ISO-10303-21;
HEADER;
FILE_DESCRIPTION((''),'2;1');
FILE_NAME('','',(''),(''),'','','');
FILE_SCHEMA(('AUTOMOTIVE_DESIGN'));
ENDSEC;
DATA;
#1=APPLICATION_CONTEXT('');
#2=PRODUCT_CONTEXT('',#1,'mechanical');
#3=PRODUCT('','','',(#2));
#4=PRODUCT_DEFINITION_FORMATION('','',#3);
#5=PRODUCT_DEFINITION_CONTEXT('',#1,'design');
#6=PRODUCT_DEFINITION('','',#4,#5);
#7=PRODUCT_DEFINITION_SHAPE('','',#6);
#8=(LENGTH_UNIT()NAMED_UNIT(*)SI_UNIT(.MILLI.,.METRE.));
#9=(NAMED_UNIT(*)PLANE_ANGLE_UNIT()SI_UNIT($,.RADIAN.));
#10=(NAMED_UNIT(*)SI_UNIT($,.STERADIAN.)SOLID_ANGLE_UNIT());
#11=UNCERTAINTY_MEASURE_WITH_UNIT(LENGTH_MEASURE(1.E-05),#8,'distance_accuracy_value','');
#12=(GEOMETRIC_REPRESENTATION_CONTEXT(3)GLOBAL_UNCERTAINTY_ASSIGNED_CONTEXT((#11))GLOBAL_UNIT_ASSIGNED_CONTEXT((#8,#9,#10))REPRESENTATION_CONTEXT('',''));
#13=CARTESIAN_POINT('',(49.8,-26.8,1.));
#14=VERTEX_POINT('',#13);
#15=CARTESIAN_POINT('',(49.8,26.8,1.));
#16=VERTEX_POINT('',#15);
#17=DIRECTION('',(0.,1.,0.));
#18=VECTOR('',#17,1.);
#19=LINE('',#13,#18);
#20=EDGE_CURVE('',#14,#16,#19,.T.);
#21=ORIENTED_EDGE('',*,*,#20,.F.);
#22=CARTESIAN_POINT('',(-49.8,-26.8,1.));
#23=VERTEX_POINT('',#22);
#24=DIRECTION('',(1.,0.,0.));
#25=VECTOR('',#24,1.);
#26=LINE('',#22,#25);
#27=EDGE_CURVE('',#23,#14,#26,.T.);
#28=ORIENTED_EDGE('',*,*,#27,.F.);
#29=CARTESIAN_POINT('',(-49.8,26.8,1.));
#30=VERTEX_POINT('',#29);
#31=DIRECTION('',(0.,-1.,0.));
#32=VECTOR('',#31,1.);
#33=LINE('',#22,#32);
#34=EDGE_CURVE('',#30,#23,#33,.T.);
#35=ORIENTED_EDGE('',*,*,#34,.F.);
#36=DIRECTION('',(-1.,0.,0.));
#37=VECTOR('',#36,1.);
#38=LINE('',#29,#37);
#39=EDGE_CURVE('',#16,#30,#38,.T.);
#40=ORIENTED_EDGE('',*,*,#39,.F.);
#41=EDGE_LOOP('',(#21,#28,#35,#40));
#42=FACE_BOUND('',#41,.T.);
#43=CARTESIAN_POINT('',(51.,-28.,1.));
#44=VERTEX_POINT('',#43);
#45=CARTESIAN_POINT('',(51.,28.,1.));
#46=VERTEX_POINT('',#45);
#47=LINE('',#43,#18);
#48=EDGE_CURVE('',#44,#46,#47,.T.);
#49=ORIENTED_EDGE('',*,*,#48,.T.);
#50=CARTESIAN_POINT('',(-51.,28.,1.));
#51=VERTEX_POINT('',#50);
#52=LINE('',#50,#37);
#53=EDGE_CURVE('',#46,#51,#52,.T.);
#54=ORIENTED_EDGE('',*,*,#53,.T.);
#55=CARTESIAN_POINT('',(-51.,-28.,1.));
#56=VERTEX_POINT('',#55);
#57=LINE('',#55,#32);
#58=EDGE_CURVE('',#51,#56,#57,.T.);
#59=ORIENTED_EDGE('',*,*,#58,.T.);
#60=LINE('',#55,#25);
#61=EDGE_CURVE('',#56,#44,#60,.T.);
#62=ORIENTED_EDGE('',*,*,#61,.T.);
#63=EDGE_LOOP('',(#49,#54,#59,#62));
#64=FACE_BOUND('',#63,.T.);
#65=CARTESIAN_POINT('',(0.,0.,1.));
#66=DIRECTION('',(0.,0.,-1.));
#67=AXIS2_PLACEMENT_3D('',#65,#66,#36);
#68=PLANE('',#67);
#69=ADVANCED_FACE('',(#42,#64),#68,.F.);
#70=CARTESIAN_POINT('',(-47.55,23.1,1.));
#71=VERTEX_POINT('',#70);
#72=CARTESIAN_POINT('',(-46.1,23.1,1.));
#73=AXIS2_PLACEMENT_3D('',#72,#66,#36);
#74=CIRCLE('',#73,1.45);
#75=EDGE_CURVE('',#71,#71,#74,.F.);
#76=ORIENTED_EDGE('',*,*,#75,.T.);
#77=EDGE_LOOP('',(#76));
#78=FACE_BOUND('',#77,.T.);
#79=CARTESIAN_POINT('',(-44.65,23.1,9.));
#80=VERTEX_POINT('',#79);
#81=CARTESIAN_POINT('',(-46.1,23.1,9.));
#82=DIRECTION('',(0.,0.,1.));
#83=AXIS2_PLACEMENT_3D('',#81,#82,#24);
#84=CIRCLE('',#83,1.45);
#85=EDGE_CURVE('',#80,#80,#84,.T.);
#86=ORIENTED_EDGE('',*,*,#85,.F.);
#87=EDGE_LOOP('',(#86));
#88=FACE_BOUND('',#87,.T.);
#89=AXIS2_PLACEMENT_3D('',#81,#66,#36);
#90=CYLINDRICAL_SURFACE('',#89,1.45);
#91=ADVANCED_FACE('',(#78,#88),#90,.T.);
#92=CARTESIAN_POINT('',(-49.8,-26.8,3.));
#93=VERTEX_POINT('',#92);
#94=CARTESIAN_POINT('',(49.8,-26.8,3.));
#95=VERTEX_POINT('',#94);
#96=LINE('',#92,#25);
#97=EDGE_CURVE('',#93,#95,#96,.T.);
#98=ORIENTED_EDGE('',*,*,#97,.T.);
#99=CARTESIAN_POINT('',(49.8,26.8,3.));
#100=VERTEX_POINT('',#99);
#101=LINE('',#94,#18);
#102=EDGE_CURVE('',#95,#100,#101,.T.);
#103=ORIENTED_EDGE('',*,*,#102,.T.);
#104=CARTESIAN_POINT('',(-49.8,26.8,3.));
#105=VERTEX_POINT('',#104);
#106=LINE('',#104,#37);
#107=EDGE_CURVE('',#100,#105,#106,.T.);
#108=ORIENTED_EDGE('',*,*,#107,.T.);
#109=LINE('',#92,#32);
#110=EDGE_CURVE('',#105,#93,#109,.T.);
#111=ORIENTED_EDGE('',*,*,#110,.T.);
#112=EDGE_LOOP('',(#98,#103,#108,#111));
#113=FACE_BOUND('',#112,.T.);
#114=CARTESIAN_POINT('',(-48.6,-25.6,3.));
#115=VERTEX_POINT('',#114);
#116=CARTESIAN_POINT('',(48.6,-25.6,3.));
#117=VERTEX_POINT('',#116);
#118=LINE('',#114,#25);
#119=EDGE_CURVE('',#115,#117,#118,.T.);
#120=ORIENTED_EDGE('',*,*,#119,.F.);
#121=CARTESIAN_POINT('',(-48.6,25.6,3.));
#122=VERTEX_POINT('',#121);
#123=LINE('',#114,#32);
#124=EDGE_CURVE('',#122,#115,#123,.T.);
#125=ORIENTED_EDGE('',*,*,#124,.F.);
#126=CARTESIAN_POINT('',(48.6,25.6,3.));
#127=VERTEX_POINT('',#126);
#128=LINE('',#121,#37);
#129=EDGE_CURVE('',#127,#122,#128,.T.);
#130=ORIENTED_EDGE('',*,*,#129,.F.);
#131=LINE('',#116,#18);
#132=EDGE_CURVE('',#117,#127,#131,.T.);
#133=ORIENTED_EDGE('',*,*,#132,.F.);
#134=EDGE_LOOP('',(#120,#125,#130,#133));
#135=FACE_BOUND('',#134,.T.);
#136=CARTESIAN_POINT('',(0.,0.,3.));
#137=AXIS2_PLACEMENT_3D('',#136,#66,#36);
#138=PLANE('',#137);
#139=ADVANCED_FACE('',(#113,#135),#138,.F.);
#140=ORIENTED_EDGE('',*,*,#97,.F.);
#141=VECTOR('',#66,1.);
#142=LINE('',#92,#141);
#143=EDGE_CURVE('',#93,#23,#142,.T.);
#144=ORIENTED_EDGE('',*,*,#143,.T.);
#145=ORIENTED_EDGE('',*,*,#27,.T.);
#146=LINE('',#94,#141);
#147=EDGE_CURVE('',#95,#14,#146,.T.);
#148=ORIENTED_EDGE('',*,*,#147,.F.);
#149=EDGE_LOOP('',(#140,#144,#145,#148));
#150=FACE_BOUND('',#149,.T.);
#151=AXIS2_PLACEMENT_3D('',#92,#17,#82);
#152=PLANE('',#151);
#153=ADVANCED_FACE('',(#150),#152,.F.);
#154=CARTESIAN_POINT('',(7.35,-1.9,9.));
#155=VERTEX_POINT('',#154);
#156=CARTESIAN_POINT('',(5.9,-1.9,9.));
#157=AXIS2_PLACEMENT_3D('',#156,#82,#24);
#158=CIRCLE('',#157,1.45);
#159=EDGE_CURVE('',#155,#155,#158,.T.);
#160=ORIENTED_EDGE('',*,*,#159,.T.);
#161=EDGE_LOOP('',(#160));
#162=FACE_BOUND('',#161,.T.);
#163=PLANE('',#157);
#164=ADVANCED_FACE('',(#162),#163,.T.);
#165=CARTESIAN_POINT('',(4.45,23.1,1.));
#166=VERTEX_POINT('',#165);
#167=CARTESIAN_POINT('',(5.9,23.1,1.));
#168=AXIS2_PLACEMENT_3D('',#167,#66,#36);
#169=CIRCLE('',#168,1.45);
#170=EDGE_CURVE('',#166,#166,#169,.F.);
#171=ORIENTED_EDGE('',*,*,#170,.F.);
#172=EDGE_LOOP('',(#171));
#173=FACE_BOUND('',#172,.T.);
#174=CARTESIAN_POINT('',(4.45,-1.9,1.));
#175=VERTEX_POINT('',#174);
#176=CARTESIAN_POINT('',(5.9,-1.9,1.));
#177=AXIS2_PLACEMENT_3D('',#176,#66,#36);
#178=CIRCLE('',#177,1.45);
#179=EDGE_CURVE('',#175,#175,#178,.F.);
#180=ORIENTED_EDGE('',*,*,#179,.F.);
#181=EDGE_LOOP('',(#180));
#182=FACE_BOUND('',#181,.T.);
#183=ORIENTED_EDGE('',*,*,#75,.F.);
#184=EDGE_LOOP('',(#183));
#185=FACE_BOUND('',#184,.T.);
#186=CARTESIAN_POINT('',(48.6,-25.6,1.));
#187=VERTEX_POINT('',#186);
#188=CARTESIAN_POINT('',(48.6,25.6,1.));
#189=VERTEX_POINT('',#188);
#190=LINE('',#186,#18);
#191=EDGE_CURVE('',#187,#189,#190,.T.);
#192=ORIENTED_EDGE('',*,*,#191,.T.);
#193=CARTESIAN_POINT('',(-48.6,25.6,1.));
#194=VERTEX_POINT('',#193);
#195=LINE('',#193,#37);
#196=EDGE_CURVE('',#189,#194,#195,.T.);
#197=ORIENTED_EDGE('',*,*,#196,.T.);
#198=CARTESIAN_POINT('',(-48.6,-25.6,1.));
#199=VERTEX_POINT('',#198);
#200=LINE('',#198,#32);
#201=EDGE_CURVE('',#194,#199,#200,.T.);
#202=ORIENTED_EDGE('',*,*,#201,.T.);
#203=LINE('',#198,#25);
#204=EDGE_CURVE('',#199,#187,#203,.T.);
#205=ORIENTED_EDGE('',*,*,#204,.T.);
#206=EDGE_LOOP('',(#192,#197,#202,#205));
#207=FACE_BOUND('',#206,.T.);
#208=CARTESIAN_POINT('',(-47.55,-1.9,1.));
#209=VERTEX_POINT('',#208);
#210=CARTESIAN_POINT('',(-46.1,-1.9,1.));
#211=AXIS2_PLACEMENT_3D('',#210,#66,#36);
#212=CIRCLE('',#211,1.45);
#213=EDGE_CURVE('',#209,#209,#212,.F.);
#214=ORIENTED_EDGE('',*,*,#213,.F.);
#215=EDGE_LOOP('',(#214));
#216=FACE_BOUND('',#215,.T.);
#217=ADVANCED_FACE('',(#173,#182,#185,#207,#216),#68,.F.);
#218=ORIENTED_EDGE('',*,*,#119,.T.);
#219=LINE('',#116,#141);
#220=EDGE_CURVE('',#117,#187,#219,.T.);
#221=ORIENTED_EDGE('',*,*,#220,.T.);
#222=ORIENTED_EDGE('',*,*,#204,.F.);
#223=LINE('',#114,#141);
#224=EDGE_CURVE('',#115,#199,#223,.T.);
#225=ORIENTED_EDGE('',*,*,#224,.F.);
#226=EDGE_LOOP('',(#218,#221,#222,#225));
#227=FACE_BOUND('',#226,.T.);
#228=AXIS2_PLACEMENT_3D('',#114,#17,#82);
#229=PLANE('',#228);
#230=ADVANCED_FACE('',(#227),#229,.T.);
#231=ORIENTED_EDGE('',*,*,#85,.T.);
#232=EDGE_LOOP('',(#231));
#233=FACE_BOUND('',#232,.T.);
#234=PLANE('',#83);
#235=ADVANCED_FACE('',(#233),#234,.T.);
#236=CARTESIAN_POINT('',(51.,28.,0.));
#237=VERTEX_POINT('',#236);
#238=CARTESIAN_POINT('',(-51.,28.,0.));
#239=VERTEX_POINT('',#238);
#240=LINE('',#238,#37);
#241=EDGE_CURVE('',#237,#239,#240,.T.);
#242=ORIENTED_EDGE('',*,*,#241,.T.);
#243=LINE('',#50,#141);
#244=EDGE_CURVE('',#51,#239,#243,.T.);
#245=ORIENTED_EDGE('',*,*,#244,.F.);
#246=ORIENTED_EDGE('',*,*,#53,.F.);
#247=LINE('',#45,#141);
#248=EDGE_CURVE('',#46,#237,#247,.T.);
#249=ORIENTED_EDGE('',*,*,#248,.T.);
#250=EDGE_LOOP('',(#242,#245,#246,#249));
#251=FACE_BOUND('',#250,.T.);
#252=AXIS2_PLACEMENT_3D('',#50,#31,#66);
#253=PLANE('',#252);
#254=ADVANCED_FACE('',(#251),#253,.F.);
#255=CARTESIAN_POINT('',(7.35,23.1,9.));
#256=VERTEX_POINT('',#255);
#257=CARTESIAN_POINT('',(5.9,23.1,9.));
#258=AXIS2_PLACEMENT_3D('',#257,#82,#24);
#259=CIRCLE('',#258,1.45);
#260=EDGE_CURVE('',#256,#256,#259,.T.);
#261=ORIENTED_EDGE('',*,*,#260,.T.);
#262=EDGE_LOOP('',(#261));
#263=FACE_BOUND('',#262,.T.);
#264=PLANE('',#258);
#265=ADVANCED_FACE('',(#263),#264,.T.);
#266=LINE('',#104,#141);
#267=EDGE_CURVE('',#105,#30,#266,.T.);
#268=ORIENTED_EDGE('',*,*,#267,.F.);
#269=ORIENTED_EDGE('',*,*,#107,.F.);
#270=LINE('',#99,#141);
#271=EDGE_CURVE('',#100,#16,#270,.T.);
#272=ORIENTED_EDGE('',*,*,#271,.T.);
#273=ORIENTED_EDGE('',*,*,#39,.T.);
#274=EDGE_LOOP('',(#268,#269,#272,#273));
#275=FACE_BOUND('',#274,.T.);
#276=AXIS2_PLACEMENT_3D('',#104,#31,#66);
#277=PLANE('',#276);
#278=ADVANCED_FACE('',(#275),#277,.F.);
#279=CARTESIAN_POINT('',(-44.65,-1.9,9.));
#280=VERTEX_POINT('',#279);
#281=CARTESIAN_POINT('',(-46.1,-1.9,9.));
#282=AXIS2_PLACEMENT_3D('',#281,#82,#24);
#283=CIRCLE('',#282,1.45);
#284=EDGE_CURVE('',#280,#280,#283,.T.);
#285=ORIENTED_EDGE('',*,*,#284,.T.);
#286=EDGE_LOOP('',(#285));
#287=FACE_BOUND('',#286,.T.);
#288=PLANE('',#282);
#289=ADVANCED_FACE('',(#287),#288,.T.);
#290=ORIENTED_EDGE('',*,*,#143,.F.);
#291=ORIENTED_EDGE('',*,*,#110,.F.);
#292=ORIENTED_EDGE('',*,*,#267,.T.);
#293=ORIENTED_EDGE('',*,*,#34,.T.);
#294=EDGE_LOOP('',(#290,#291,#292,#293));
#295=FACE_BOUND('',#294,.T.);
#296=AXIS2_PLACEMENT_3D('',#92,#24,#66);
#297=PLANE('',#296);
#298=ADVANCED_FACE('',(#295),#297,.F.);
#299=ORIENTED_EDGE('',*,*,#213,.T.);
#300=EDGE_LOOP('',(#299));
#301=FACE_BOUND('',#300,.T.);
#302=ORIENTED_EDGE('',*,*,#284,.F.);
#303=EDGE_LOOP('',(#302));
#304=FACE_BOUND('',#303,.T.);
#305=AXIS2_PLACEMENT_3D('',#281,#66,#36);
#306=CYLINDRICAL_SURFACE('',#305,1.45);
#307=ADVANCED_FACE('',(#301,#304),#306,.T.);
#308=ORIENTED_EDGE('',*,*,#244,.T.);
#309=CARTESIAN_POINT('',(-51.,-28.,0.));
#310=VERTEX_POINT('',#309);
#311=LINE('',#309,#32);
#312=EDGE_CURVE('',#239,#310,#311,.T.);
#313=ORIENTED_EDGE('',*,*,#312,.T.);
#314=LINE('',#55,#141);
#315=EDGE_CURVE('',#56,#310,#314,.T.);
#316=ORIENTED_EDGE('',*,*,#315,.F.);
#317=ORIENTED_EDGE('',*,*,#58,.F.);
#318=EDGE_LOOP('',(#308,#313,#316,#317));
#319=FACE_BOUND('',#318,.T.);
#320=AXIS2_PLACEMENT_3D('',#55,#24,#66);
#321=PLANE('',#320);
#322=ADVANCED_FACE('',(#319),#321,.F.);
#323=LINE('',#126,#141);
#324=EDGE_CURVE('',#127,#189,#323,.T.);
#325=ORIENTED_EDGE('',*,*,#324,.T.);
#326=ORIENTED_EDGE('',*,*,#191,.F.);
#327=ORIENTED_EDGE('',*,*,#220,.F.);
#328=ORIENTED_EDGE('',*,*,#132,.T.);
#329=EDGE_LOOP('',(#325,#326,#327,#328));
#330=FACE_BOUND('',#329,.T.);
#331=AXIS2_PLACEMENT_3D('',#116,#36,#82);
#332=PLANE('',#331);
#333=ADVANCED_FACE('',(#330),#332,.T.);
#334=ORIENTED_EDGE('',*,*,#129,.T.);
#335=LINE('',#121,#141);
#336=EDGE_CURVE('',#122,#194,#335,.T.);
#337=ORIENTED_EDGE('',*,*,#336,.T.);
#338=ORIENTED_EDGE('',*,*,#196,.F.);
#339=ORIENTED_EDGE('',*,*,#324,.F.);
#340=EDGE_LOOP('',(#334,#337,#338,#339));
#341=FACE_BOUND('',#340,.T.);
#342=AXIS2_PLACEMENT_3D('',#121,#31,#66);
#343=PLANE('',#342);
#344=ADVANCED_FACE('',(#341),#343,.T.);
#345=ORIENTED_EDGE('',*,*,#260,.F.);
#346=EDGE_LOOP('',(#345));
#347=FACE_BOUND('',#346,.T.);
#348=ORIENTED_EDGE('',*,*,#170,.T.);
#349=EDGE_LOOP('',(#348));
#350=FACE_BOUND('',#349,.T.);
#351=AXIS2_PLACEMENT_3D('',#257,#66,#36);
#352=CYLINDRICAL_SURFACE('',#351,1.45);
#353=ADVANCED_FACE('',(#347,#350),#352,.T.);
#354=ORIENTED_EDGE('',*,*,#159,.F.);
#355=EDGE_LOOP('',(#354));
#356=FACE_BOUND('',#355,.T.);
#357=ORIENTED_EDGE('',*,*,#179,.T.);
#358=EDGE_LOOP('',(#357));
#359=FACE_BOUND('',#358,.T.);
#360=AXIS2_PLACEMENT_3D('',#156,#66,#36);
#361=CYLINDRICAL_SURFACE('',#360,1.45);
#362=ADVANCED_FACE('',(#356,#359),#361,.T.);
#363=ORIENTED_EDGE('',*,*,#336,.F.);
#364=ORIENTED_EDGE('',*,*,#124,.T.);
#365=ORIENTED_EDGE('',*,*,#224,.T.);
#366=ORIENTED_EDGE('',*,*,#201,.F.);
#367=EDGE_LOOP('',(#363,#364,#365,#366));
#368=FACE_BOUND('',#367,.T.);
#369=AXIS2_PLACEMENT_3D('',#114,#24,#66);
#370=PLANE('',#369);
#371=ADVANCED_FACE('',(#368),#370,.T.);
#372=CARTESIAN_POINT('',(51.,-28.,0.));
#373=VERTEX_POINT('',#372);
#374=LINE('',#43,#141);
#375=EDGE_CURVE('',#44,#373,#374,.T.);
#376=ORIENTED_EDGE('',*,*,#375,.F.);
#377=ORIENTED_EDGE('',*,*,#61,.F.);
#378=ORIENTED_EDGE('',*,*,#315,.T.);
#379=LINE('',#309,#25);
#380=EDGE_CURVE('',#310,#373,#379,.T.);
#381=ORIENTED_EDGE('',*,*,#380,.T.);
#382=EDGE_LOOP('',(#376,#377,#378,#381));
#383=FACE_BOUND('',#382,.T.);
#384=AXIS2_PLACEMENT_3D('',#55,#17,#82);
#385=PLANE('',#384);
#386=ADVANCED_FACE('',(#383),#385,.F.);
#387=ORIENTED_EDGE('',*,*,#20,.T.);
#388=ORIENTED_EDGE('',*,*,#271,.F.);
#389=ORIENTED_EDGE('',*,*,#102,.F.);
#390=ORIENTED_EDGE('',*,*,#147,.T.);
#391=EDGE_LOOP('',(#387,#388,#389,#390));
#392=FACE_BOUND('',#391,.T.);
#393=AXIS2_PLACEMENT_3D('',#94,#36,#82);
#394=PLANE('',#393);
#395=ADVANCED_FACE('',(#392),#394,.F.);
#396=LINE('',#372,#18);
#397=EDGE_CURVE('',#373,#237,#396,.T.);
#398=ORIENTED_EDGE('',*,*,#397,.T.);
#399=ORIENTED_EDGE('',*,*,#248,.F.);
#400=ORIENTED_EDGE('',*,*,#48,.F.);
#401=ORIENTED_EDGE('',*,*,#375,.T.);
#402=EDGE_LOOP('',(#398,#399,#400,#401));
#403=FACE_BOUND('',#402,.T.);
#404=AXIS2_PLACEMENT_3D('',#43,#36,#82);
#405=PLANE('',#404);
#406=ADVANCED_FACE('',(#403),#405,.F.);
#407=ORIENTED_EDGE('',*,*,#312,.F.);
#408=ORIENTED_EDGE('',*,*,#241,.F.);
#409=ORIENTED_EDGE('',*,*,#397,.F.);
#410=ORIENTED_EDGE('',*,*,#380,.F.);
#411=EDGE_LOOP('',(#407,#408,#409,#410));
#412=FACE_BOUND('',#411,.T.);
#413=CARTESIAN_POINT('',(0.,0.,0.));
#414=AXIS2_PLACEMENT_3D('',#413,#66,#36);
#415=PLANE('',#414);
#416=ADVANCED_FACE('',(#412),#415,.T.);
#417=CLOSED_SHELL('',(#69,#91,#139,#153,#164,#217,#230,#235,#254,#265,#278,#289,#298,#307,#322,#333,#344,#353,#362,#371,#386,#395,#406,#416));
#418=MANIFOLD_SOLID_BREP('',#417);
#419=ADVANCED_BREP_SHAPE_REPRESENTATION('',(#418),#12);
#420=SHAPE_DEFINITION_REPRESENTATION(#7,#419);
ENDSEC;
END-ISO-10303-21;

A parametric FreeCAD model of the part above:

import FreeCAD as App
import Part
import Sketcher
from FreeCAD import Vector
Q = App.Units.Quantity


def add_polygon(sketch, points):
    """Adds a closed chain of lines whose ends are joined by coincident constraints."""
    first, n = sketch.GeometryCount, len(points)
    for a, b in zip(points, points[1:] + points[:1]):
        sketch.addGeometry(Part.LineSegment(App.Vector(*a, 0), App.Vector(*b, 0)), False)
    for i in range(n):
        sketch.addConstraint(Sketcher.Constraint("Coincident", first + i, 2, first + (i + 1) % n, 1))

doc = App.newDocument("Part")
body = doc.addObject("PartDesign::Body", "Body")

sketch1 = body.newObject("Sketcher::SketchObject", "Sketch")
sketch1.AttachmentSupport = (doc.getObject("XY_Plane"), [""])
sketch1.MapMode = "FlatFace"
add_polygon(sketch1, [(-51, 28), (-51, -28), (51, -28), (51, 28)])
sketch1.addConstraint(Sketcher.Constraint("Vertical", 0))
sketch1.addConstraint(Sketcher.Constraint("Horizontal", 1))
sketch1.addConstraint(Sketcher.Constraint("Vertical", 2))
sketch1.addConstraint(Sketcher.Constraint("Horizontal", 3))
sketch1.addConstraint(Sketcher.Constraint("Symmetric", 0, 2, 2, 2, -1, 1))
sketch1.addConstraint(Sketcher.Constraint("DistanceX", 1, 1, 1, 2, Q("102 mm")))
sketch1.addConstraint(Sketcher.Constraint("DistanceY", 0, 2, 0, 1, Q("56 mm")))
pad1 = body.newObject("PartDesign::Pad", "Pad")
pad1.Profile = sketch1
pad1.Length = 1

sketch2 = body.newObject("Sketcher::SketchObject", "Sketch001")
sketch2.AttachmentSupport = (doc.getObject("XY_Plane"), [""])
sketch2.MapMode = "FlatFace"
sketch2.AttachmentOffset = App.Placement(Vector(0, 0, 1), App.Rotation())
add_polygon(sketch2, [(-50, 27), (-50, -27), (50, -27), (50, 27)])
add_polygon(sketch2, [(49, -26), (-49, -26), (-49, 26), (49, 26)])
sketch2.addConstraint(Sketcher.Constraint("Vertical", 0))
sketch2.addConstraint(Sketcher.Constraint("Horizontal", 1))
sketch2.addConstraint(Sketcher.Constraint("Vertical", 2))
sketch2.addConstraint(Sketcher.Constraint("Horizontal", 3))
sketch2.addConstraint(Sketcher.Constraint("Horizontal", 4))
sketch2.addConstraint(Sketcher.Constraint("Vertical", 5))
sketch2.addConstraint(Sketcher.Constraint("Horizontal", 6))
sketch2.addConstraint(Sketcher.Constraint("Vertical", 7))
sketch2.addConstraint(Sketcher.Constraint("Symmetric", 0, 2, 2, 2, -1, 1))
sketch2.addConstraint(Sketcher.Constraint("Symmetric", 4, 2, 6, 2, -1, 1))
sketch2.addConstraint(Sketcher.Constraint("DistanceX", 1, 1, 1, 2, Q("99.6 mm")))
sketch2.addConstraint(Sketcher.Constraint("DistanceX", 4, 2, 4, 1, Q("97.2 mm")))
sketch2.addConstraint(Sketcher.Constraint("DistanceY", 0, 2, 0, 1, Q("53.6 mm")))
sketch2.addConstraint(Sketcher.Constraint("DistanceY", 5, 1, 5, 2, Q("51.2 mm")))
pad2 = body.newObject("PartDesign::Pad", "Pad001")
pad2.Profile = sketch2
pad2.Length = 2

sketch3 = body.newObject("Sketcher::SketchObject", "Sketch002")
sketch3.AttachmentSupport = (doc.getObject("XY_Plane"), [""])
sketch3.MapMode = "FlatFace"
sketch3.AttachmentOffset = App.Placement(Vector(0, 0, 1), App.Rotation())
sketch3.addGeometry(Part.Circle(Vector(-46.1, 23.1, 0), Vector(0, 0, 1), 1.4), False)
sketch3.addGeometry(Part.Circle(Vector(-46.1, -1.9, 0), Vector(0, 0, 1), 1.4), False)
sketch3.addGeometry(Part.Circle(Vector(5.9, 23.1, 0), Vector(0, 0, 1), 1.4), False)
sketch3.addGeometry(Part.Circle(Vector(5.9, -1.9, 0), Vector(0, 0, 1), 1.4), False)
sketch3.addConstraint(Sketcher.Constraint("Equal", 0, 1))
sketch3.addConstraint(Sketcher.Constraint("Equal", 1, 2))
sketch3.addConstraint(Sketcher.Constraint("Equal", 2, 3))
sketch3.addConstraint(Sketcher.Constraint("Horizontal", 0, 3, 2, 3))
sketch3.addConstraint(Sketcher.Constraint("Horizontal", 1, 3, 3, 3))
sketch3.addConstraint(Sketcher.Constraint("Vertical", 0, 3, 1, 3))
sketch3.addConstraint(Sketcher.Constraint("Vertical", 2, 3, 3, 3))
sketch3.addConstraint(Sketcher.Constraint("Diameter", 0, Q("2.9 mm")))
sketch3.addConstraint(Sketcher.Constraint("DistanceY", 1, 3, 0, 3, Q("25 mm")))
sketch3.addConstraint(Sketcher.Constraint("DistanceX", 0, 3, 2, 3, Q("52 mm")))
sketch3.addConstraint(Sketcher.Constraint("DistanceX", 0, 3, -1, 1, Q("46.1 mm")))
sketch3.addConstraint(Sketcher.Constraint("DistanceY", -1, 1, 0, 3, Q("23.1 mm")))
pad3 = body.newObject("PartDesign::Pad", "Pad002")
pad3.Profile = sketch3
pad3.Length = 8

doc.recompute()
